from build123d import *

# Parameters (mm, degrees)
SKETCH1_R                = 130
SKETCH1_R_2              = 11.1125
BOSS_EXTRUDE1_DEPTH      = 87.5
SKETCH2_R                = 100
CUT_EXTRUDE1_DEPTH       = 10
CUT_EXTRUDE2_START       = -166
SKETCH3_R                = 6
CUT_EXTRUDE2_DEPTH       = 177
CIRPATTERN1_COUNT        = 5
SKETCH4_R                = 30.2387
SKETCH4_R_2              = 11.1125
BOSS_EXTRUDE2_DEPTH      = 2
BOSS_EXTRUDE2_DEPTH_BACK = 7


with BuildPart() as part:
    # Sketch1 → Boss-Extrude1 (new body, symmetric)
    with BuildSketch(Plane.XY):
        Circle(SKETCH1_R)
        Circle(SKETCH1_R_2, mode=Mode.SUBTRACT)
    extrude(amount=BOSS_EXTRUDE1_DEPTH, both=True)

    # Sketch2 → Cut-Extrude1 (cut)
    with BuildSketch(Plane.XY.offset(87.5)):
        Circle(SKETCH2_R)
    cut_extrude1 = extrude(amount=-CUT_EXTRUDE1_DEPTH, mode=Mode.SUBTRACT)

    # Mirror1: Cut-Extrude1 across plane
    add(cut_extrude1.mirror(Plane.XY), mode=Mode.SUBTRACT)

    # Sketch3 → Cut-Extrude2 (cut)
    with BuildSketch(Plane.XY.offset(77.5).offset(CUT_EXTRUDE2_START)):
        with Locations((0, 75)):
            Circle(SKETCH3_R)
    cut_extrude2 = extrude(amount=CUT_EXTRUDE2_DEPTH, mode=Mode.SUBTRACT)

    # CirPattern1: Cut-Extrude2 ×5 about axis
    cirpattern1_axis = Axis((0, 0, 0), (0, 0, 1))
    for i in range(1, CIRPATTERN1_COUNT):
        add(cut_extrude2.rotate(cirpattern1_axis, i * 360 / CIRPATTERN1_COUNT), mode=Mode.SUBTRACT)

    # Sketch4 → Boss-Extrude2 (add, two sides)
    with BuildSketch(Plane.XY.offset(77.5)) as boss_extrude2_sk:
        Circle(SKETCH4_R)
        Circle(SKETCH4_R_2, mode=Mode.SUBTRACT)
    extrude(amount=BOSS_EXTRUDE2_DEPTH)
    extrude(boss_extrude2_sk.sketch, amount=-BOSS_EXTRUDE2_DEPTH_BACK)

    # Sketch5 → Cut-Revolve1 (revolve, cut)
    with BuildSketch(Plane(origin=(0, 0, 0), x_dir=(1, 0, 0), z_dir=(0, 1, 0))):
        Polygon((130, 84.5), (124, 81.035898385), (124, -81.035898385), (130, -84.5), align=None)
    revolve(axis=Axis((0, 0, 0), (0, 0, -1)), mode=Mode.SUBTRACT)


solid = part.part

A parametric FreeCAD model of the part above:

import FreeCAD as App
import Part
import Sketcher

V = App.Vector
Q = App.Units.Quantity


def add_polygon(sketch, points):
    """Adds a closed chain of lines whose ends are joined by coincident constraints."""
    first, n = sketch.GeometryCount, len(points)
    for a, b in zip(points, points[1:] + points[:1]):
        sketch.addGeometry(Part.LineSegment(App.Vector(*a, 0), App.Vector(*b, 0)), False)
    for i in range(n):
        sketch.addConstraint(Sketcher.Constraint("Coincident", first + i, 2, first + (i + 1) % n, 1))

doc = App.newDocument("Part")
body = doc.addObject("PartDesign::Body", "Body")

sketch1 = doc.addObject("Sketcher::SketchObject", "Sketch")
body.addObject(sketch1)
sketch1.AttachmentSupport = (doc.XY_Plane, [""])
sketch1.MapMode = "FlatFace"
sketch1.addGeometry(Part.Circle(V(0, 0, 0), V(0, 0, 1), 130), False)
sketch1.addGeometry(Part.Circle(V(0, 0, 0), V(0, 0, 1), 11.1125), False)
sketch1.addConstraint(Sketcher.Constraint("Coincident", 0, 3, -1, 1))
sketch1.addConstraint(Sketcher.Constraint("Coincident", 1, 3, -1, 1))
sketch1.addConstraint(Sketcher.Constraint("Diameter", 0, 260.0))
sketch1.addConstraint(Sketcher.Constraint("Diameter", 1, 22.225))
pad1 = doc.addObject("PartDesign::Pad", "Pad")
body.addObject(pad1)
pad1.Profile = sketch1
pad1.Length = 175
pad1.Midplane = True

sketch2 = doc.addObject("Sketcher::SketchObject", "Sketch001")
body.addObject(sketch2)
sketch2.AttachmentSupport = (doc.XY_Plane, [""])
sketch2.MapMode = "FlatFace"
sketch2.AttachmentOffset = App.Placement(V(0, 0, 87.5), App.Rotation())
sketch2.addGeometry(Part.Circle(V(0, 0, 0), V(0, 0, 1), 100), False)
sketch2.addConstraint(Sketcher.Constraint("Coincident", 0, 3, -1, 1))
sketch2.addConstraint(Sketcher.Constraint("Diameter", 0, 200.0))
pocket1 = doc.addObject("PartDesign::Pocket", "Pocket")
body.addObject(pocket1)
pocket1.Profile = sketch2
pocket1.Length = 10
doc.recompute()

mirrored = doc.addObject("PartDesign::Mirrored", "Mirrored")
body.addObject(mirrored)
mirrored.Originals = [pocket1]
mirrored.MirrorPlane = (doc.XY_Plane, [""])
body.Tip = mirrored

sketch3 = doc.addObject("Sketcher::SketchObject", "Sketch002")
body.addObject(sketch3)
sketch3.AttachmentSupport = (doc.XY_Plane, [""])
sketch3.MapMode = "FlatFace"
sketch3.AttachmentOffset = App.Placement(V(0, 0, -88.5), App.Rotation())
sketch3.addGeometry(Part.Circle(V(0, 75, 0), V(0, 0, 1), 6), False)
sketch3.addConstraint(Sketcher.Constraint("PointOnObject", 0, 3, -2))
sketch3.addConstraint(Sketcher.Constraint("Diameter", 0, 12.0))
sketch3.addConstraint(Sketcher.Constraint("DistanceY", -1, 1, 0, 3, 75.0))
pocket2 = doc.addObject("PartDesign::Pocket", "Pocket001")
body.addObject(pocket2)
pocket2.Profile = sketch3
pocket2.Length = 177
pocket2.Reversed = True
doc.recompute()

polarpattern = doc.addObject("PartDesign::PolarPattern", "PolarPattern")
body.addObject(polarpattern)
polarpattern.Originals = [pocket2]
polarpattern.Axis = (doc.Z_Axis, [""])
polarpattern.Angle = 360
polarpattern.Occurrences = 5
body.Tip = polarpattern

sketch4 = doc.addObject("Sketcher::SketchObject", "Sketch003")
body.addObject(sketch4)
sketch4.AttachmentSupport = (doc.XY_Plane, [""])
sketch4.MapMode = "FlatFace"
sketch4.AttachmentOffset = App.Placement(V(0, 0, 77.5), App.Rotation())
sketch4.addGeometry(Part.Circle(V(0, 0, 0), V(0, 0, 1), 30.2387), False)
sketch4.addGeometry(Part.Circle(V(0, 0, 0), V(0, 0, 1), 11.1125), False)
sketch4.addConstraint(Sketcher.Constraint("Coincident", 0, 3, -1, 1))
sketch4.addConstraint(Sketcher.Constraint("Coincident", 1, 3, -1, 1))
sketch4.addConstraint(Sketcher.Constraint("Diameter", 1, 22.225))
sketch4.addConstraint(Sketcher.Constraint("Diameter", 0, 60.4774))
pad2 = doc.addObject("PartDesign::Pad", "Pad001")
body.addObject(pad2)
pad2.Profile = sketch4
pad2.Type = "TwoLengths"
pad2.Length = 2
pad2.Length2 = 7

sketch5 = doc.addObject("Sketcher::SketchObject", "Sketch004")
body.addObject(sketch5)
sketch5.AttachmentSupport = (doc.XZ_Plane, [""])
sketch5.MapMode = "FlatFace"
add_polygon(sketch5, [(130, -84.5), (124, -81.035898), (124, 81.035898), (130, 84.5)])
sketch5.addConstraint(Sketcher.Constraint("Vertical", 1))
sketch5.addConstraint(Sketcher.Constraint("Vertical", 3))
sketch5.addConstraint(Sketcher.Constraint("Equal", 0, 2))
sketch5.addConstraint(Sketcher.Constraint("DistanceY", 3, 2, 3, 1, 169.0))
sketch5.addConstraint(Sketcher.Constraint("Angle", 0, Q("150 deg")))
sketch5.addConstraint(Sketcher.Constraint("DistanceX", -1, 1, 0, 2, 124.0))
sketch5.addConstraint(Sketcher.Constraint("DistanceX", -1, 1, 2, 2, 130.0))
sketch5.addConstraint(Sketcher.Constraint("DistanceY", -1, 1, 2, 2, 84.5))
groove = doc.addObject("PartDesign::Groove", "Groove")
body.addObject(groove)
groove.Profile = sketch5
groove.ReferenceAxis = (sketch5, ["V_Axis"])
groove.Angle = 360

doc.recompute()
